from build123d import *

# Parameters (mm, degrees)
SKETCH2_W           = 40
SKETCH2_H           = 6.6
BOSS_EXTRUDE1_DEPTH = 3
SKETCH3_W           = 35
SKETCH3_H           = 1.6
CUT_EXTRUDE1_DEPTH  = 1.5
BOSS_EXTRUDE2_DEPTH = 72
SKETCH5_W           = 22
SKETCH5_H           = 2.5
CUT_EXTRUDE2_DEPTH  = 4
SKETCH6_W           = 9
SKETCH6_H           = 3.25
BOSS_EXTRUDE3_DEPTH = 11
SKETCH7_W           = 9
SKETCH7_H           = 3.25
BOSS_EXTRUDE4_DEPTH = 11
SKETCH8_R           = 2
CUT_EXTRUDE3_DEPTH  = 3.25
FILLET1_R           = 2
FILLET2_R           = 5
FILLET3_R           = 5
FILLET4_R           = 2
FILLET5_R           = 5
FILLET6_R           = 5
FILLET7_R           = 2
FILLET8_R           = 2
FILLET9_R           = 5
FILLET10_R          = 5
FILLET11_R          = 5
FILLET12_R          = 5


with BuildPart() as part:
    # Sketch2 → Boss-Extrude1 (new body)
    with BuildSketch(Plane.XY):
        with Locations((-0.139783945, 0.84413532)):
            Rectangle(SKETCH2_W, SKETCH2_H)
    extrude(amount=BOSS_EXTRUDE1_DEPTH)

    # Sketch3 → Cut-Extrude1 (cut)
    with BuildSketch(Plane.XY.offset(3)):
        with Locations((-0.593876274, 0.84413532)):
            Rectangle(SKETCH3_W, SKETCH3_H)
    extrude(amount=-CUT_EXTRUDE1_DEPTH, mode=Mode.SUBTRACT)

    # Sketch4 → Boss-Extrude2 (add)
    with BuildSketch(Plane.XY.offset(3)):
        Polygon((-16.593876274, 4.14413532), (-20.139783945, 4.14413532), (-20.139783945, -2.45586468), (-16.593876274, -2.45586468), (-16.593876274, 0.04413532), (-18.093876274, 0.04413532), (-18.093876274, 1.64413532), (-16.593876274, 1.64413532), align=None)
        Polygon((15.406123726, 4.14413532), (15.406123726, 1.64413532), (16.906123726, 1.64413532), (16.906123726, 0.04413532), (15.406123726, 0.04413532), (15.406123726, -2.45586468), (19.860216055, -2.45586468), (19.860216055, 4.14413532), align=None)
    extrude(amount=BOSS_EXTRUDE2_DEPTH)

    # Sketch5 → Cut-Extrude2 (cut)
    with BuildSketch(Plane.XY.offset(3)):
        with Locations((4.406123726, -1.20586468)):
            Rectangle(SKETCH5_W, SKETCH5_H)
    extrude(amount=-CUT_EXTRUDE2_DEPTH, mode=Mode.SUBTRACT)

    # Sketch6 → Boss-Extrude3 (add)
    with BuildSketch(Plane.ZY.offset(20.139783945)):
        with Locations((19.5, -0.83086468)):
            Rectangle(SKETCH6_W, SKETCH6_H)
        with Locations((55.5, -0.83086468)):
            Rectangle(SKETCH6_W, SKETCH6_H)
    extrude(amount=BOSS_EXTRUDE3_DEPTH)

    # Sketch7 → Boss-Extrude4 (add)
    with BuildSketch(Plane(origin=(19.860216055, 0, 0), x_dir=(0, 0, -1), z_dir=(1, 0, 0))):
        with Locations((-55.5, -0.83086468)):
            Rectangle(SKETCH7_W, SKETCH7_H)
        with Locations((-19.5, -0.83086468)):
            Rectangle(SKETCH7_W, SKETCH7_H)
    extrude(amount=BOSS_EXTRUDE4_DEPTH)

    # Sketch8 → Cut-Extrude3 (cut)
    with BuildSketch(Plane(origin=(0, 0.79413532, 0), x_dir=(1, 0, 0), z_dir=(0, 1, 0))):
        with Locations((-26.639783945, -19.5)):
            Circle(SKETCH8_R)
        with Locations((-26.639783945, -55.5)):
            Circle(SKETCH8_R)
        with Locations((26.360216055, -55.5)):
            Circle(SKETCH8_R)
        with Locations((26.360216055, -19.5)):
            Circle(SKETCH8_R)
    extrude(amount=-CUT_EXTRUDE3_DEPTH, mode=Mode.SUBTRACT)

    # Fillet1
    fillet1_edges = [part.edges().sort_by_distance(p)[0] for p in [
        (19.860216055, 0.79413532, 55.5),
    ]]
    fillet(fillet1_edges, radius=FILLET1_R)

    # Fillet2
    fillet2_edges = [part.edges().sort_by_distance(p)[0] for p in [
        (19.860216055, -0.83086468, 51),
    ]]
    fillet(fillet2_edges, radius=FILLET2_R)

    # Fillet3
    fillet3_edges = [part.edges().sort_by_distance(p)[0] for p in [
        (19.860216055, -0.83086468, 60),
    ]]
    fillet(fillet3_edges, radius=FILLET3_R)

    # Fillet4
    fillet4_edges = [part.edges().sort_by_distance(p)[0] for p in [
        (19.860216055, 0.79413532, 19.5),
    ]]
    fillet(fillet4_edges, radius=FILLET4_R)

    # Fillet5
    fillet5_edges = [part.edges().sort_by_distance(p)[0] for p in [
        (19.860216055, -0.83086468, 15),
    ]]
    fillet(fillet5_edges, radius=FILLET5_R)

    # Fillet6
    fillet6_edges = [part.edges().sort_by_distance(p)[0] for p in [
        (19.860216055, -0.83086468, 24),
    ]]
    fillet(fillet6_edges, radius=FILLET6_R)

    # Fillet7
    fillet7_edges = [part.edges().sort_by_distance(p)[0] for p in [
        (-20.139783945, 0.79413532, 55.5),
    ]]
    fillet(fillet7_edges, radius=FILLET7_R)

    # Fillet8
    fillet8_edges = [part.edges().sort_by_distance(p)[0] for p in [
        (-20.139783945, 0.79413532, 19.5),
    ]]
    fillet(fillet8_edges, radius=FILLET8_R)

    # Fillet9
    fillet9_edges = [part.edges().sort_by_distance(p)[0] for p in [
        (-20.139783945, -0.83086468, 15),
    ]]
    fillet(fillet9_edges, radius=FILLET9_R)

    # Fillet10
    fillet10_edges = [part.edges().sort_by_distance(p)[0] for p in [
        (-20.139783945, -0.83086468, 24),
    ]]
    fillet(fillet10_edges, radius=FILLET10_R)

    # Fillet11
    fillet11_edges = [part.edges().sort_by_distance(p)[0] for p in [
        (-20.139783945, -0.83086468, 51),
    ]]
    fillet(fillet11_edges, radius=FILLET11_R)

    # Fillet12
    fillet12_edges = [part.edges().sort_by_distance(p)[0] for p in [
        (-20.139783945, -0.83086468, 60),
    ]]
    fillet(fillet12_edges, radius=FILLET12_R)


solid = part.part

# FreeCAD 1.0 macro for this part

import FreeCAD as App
import Part
import Sketcher
from FreeCAD import Vector


def edges_at(feature, points):
    """Names of the edges that pass closest to the given points."""
    edges = feature.Shape.Edges
    near = lambda p: min(range(len(edges)), key=lambda i: edges[i].distToShape(Part.Vertex(*p))[0])
    return sorted({f"Edge{near(p) + 1}" for p in points})


def add_polygon(sketch, points):
    """Adds a closed chain of lines whose ends are joined by coincident constraints."""
    first, n = sketch.GeometryCount, len(points)
    for a, b in zip(points, points[1:] + points[:1]):
        sketch.addGeometry(Part.LineSegment(App.Vector(*a, 0), App.Vector(*b, 0)), False)
    for i in range(n):
        sketch.addConstraint(Sketcher.Constraint("Coincident", first + i, 2, first + (i + 1) % n, 1))

doc = App.newDocument("Part")
body = doc.addObject("PartDesign::Body", "Body")

# Sketch on XY plane
sketch1 = body.newObject("Sketcher::SketchObject", "Sketch")
sketch1.AttachmentSupport = (doc.getObject("XY_Plane"), [""])
sketch1.MapMode = "FlatFace"
add_polygon(sketch1, [(-20.139784, 4.144135), (-20.139784, -2.455865), (19.860216, -2.455865), (19.860216, 4.144135)])  # lines 0-3
sketch1.addConstraint([
    Sketcher.Constraint("Vertical", 0),
    Sketcher.Constraint("Horizontal", 1),
    Sketcher.Constraint("Vertical", 2),
    Sketcher.Constraint("Horizontal", 3),
    Sketcher.Constraint("DistanceX", 1, 1, 1, 2, 40.0),
    Sketcher.Constraint("DistanceY", 0, 2, 0, 1, 6.6),
    Sketcher.Constraint("DistanceX", 0, 2, -1, 1, 20.139784),
    Sketcher.Constraint("DistanceY", 0, 2, -1, 1, 2.455865),
])
pad1 = body.newObject("PartDesign::Pad", "Pad")
pad1.Profile = sketch1
pad1.Length = 3

# Sketch on XY plane
sketch2 = body.newObject("Sketcher::SketchObject", "Sketch001")
sketch2.AttachmentSupport = (doc.getObject("XY_Plane"), [""])
sketch2.MapMode = "FlatFace"
sketch2.AttachmentOffset = App.Placement(Vector(0, 0, 3), App.Rotation())
add_polygon(sketch2, [(-18.093876, 1.644135), (-18.093876, 0.044135), (16.906124, 0.044135), (16.906124, 1.644135)])  # lines 0-3
sketch2.addConstraint([
    Sketcher.Constraint("Vertical", 0),
    Sketcher.Constraint("Horizontal", 1),
    Sketcher.Constraint("Vertical", 2),
    Sketcher.Constraint("Horizontal", 3),
    Sketcher.Constraint("DistanceX", 1, 1, 1, 2, 35.0),
    Sketcher.Constraint("DistanceY", 0, 2, 0, 1, 1.6),
    Sketcher.Constraint("DistanceX", 0, 2, -1, 1, 18.093876),
    Sketcher.Constraint("DistanceY", -1, 1, 0, 2, 0.044135),
])
pocket1 = body.newObject("PartDesign::Pocket", "Pocket")
pocket1.Profile = sketch2
pocket1.Length = 1.5

# Sketch on XY plane
sketch3 = body.newObject("Sketcher::SketchObject", "Sketch002")
sketch3.AttachmentSupport = (doc.getObject("XY_Plane"), [""])
sketch3.MapMode = "FlatFace"
sketch3.AttachmentOffset = App.Placement(Vector(0, 0, 3), App.Rotation())
add_polygon(sketch3, [(-16.593876, 4.144135), (-20.139784, 4.144135), (-20.139784, -2.455865), (-16.593876, -2.455865), (-16.593876, 0.044135), (-18.093876, 0.044135), (-18.093876, 1.644135), (-16.593876, 1.644135)])  # lines 0-7
add_polygon(sketch3, [(15.406124, 4.144135), (15.406124, 1.644135), (16.906124, 1.644135), (16.906124, 0.044135), (15.406124, 0.044135), (15.406124, -2.455865), (19.860216, -2.455865), (19.860216, 4.144135)])  # lines 8-15
sketch3.addConstraint([
    Sketcher.Constraint("Horizontal", 0),
    Sketcher.Constraint("Vertical", 1),
    Sketcher.Constraint("Horizontal", 2),
    Sketcher.Constraint("Vertical", 3),
    Sketcher.Constraint("Horizontal", 4),
    Sketcher.Constraint("Vertical", 5),
    Sketcher.Constraint("Horizontal", 6),
    Sketcher.Constraint("Vertical", 7),
    Sketcher.Constraint("Vertical", 8),
    Sketcher.Constraint("Horizontal", 9),
    Sketcher.Constraint("Vertical", 10),
    Sketcher.Constraint("Horizontal", 11),
    Sketcher.Constraint("Vertical", 12),
    Sketcher.Constraint("Horizontal", 13),
    Sketcher.Constraint("Vertical", 14),
    Sketcher.Constraint("Horizontal", 15),
    Sketcher.Constraint("Horizontal", 6, 2, 8, 2),
    Sketcher.Constraint("Horizontal", 4, 2, 10, 2),
    Sketcher.Constraint("Horizontal", 2, 2, 12, 2),
    Sketcher.Constraint("Horizontal", 7, 2, 14, 2),
    Sketcher.Constraint("Vertical", 3, 2, 6, 2),
    Sketcher.Constraint("Vertical", 8, 2, 11, 2),
    Sketcher.Constraint("Equal", 6, 9),
    Sketcher.Constraint("Equal", 3, 7),
    Sketcher.Constraint("DistanceX", 4, 2, 4, 1, 1.5),
    Sketcher.Constraint("DistanceY", 1, 2, 1, 1, 6.6),
    Sketcher.Constraint("DistanceY", 3, 1, 3, 2, 2.5),
    Sketcher.Constraint("DistanceX", 6, 2, 8, 2, 32.0),
    Sketcher.Constraint("DistanceX", 0, 2, 0, 1, 3.545908),
    Sketcher.Constraint("DistanceX", 13, 1, 13, 2, 4.454092),
    Sketcher.Constraint("DistanceX", 0, 2, -1, 1, 20.139784),
    Sketcher.Constraint("DistanceY", -1, 1, 0, 2, 4.144135),
])
pad2 = body.newObject("PartDesign::Pad", "Pad001")
pad2.Profile = sketch3
pad2.Length = 72

# Sketch on XY plane
sketch4 = body.newObject("Sketcher::SketchObject", "Sketch003")
sketch4.AttachmentSupport = (doc.getObject("XY_Plane"), [""])
sketch4.MapMode = "FlatFace"
sketch4.AttachmentOffset = App.Placement(Vector(0, 0, 3), App.Rotation())
add_polygon(sketch4, [(-6.593876, 0.044135), (-6.593876, -2.455865), (15.406124, -2.455865), (15.406124, 0.044135)])  # lines 0-3
sketch4.addConstraint([
    Sketcher.Constraint("Vertical", 0),
    Sketcher.Constraint("Horizontal", 1),
    Sketcher.Constraint("Vertical", 2),
    Sketcher.Constraint("Horizontal", 3),
    Sketcher.Constraint("DistanceX", 1, 1, 1, 2, 22.0),
    Sketcher.Constraint("DistanceY", 0, 2, 0, 1, 2.5),
    Sketcher.Constraint("DistanceX", 0, 2, -1, 1, 6.593876),
    Sketcher.Constraint("DistanceY", 0, 2, -1, 1, 2.455865),
])
pocket2 = body.newObject("PartDesign::Pocket", "Pocket001")
pocket2.Profile = sketch4
pocket2.Length = 4

# Sketch on YZ plane
sketch5 = body.newObject("Sketcher::SketchObject", "Sketch004")
sketch5.AttachmentSupport = (doc.getObject("YZ_Plane"), [""])
sketch5.MapMode = "FlatFace"
sketch5.AttachmentOffset = App.Placement(Vector(0, 0, -20.139784), App.Rotation())
add_polygon(sketch5, [(0.794135, 15), (-2.455865, 15), (-2.455865, 24), (0.794135, 24)])  # lines 0-3
add_polygon(sketch5, [(0.794135, 51), (-2.455865, 51), (-2.455865, 60), (0.794135, 60)])  # lines 4-7
sketch5.addConstraint([
    Sketcher.Constraint("Horizontal", 0),
    Sketcher.Constraint("Vertical", 1),
    Sketcher.Constraint("Horizontal", 2),
    Sketcher.Constraint("Vertical", 3),
    Sketcher.Constraint("Horizontal", 4),
    Sketcher.Constraint("Vertical", 5),
    Sketcher.Constraint("Horizontal", 6),
    Sketcher.Constraint("Vertical", 7),
    Sketcher.Constraint("Vertical", 1, 2, 4, 2),
    Sketcher.Constraint("Vertical", 3, 2, 6, 2),
    Sketcher.Constraint("Equal", 3, 5),
    Sketcher.Constraint("DistanceY", 1, 1, 1, 2, 9.0),
    Sketcher.Constraint("DistanceY", -1, 1, 0, 2, 15.0),
    Sketcher.Constraint("DistanceY", -1, 1, 4, 2, 51.0),
    Sketcher.Constraint("DistanceX", 0, 2, 0, 1, 3.25),
    Sketcher.Constraint("DistanceX", 0, 2, -1, 1, 2.455865),
])
pad3 = body.newObject("PartDesign::Pad", "Pad002")
pad3.Profile = sketch5
pad3.Length = 11
pad3.Reversed = True

# Sketch on YZ plane
sketch6 = body.newObject("Sketcher::SketchObject", "Sketch005")
sketch6.AttachmentSupport = (doc.getObject("YZ_Plane"), [""])
sketch6.MapMode = "FlatFace"
sketch6.AttachmentOffset = App.Placement(Vector(0, 0, 19.860216), App.Rotation())
add_polygon(sketch6, [(0.794135, 60), (-2.455865, 60), (-2.455865, 51), (0.794135, 51)])  # lines 0-3
add_polygon(sketch6, [(0.794135, 24), (-2.455865, 24), (-2.455865, 15), (0.794135, 15)])  # lines 4-7
sketch6.addConstraint([
    Sketcher.Constraint("Horizontal", 0),
    Sketcher.Constraint("Vertical", 1),
    Sketcher.Constraint("Horizontal", 2),
    Sketcher.Constraint("Vertical", 3),
    Sketcher.Constraint("Horizontal", 4),
    Sketcher.Constraint("Vertical", 5),
    Sketcher.Constraint("Horizontal", 6),
    Sketcher.Constraint("Vertical", 7),
    Sketcher.Constraint("Vertical", 1, 2, 4, 2),
    Sketcher.Constraint("Vertical", 3, 2, 6, 2),
    Sketcher.Constraint("Equal", 3, 5),
    Sketcher.Constraint("DistanceY", 1, 2, 1, 1, 9.0),
    Sketcher.Constraint("DistanceY", -1, 1, 0, 2, 60.0),
    Sketcher.Constraint("DistanceY", -1, 1, 4, 2, 24.0),
    Sketcher.Constraint("DistanceX", 0, 2, 0, 1, 3.25),
    Sketcher.Constraint("DistanceX", 0, 2, -1, 1, 2.455865),
])
pad4 = body.newObject("PartDesign::Pad", "Pad003")
pad4.Profile = sketch6
pad4.Length = 11

# Sketch on XZ plane
sketch7 = body.newObject("Sketcher::SketchObject", "Sketch006")
sketch7.AttachmentSupport = (doc.getObject("XZ_Plane"), [""])
sketch7.MapMode = "FlatFace"
sketch7.AttachmentOffset = App.Placement(Vector(0, 0, -0.794135), App.Rotation())
sketch7.addGeometry([
    Part.Circle(Vector(-26.639784, 19.5, 0), Vector(0, 0, 1), 2),
    Part.Circle(Vector(-26.639784, 55.5, 0), Vector(0, 0, 1), 2),
    Part.Circle(Vector(26.360216, 55.5, 0), Vector(0, 0, 1), 2),
    Part.Circle(Vector(26.360216, 19.5, 0), Vector(0, 0, 1), 2),
], False)
sketch7.addConstraint([
    Sketcher.Constraint("Equal", 0, 1),
    Sketcher.Constraint("Equal", 1, 2),
    Sketcher.Constraint("Equal", 2, 3),
    Sketcher.Constraint("Horizontal", 1, 3, 2, 3),
    Sketcher.Constraint("Horizontal", 0, 3, 3, 3),
    Sketcher.Constraint("Vertical", 0, 3, 1, 3),
    Sketcher.Constraint("Vertical", 2, 3, 3, 3),
    Sketcher.Constraint("Diameter", 0, 4.0),
    Sketcher.Constraint("DistanceY", 0, 3, 1, 3, 36.0),
    Sketcher.Constraint("DistanceX", 1, 3, 2, 3, 53.0),
    Sketcher.Constraint("DistanceY", -1, 1, 0, 3, 19.5),
    Sketcher.Constraint("DistanceX", 0, 3, -1, 1, 26.639784),
])
pocket3 = body.newObject("PartDesign::Pocket", "Pocket002")
pocket3.Profile = sketch7
pocket3.Length = 3.25
pocket3.Reversed = True
doc.recompute()

fillet = body.newObject("PartDesign::Fillet", "Fillet")
fillet.Base = (pocket3, edges_at(pocket3, [(19.86, 0.794, 55.5)]))
fillet.Radius = 2
doc.recompute()

fillet2 = body.newObject("PartDesign::Fillet", "Fillet001")
fillet2.Base = (fillet, edges_at(fillet, [(19.86, 0.169, 51)]))
fillet2.Radius = 5
doc.recompute()

fillet3 = body.newObject("PartDesign::Fillet", "Fillet002")
fillet3.Base = (fillet2, edges_at(fillet2, [(19.86, 0.169, 60)]))
fillet3.Radius = 5
doc.recompute()

fillet4 = body.newObject("PartDesign::Fillet", "Fillet003")
fillet4.Base = (fillet3, edges_at(fillet3, [(19.86, 0.794, 19.5)]))
fillet4.Radius = 2
doc.recompute()

fillet5 = body.newObject("PartDesign::Fillet", "Fillet004")
fillet5.Base = (fillet4, edges_at(fillet4, [(19.86, 0.169, 15)]))
fillet5.Radius = 5
doc.recompute()

fillet6 = body.newObject("PartDesign::Fillet", "Fillet005")
fillet6.Base = (fillet5, edges_at(fillet5, [(19.86, 0.169, 24)]))
fillet6.Radius = 5
doc.recompute()

fillet7 = body.newObject("PartDesign::Fillet", "Fillet006")
fillet7.Base = (fillet6, edges_at(fillet6, [(-20.14, 0.794, 55.5)]))
fillet7.Radius = 2
doc.recompute()

fillet8 = body.newObject("PartDesign::Fillet", "Fillet007")
fillet8.Base = (fillet7, edges_at(fillet7, [(-20.14, 0.794, 19.5)]))
fillet8.Radius = 2
doc.recompute()

fillet9 = body.newObject("PartDesign::Fillet", "Fillet008")
fillet9.Base = (fillet8, edges_at(fillet8, [(-20.14, 0.169, 15)]))
fillet9.Radius = 5
doc.recompute()

fillet10 = body.newObject("PartDesign::Fillet", "Fillet009")
fillet10.Base = (fillet9, edges_at(fillet9, [(-20.14, 0.169, 24)]))
fillet10.Radius = 5
doc.recompute()

fillet11 = body.newObject("PartDesign::Fillet", "Fillet010")
fillet11.Base = (fillet10, edges_at(fillet10, [(-20.14, 0.169, 51)]))
fillet11.Radius = 5
doc.recompute()

fillet12 = body.newObject("PartDesign::Fillet", "Fillet011")
fillet12.Base = (fillet11, edges_at(fillet11, [(-20.14, 0.169, 60)]))
fillet12.Radius = 5

doc.recompute()
